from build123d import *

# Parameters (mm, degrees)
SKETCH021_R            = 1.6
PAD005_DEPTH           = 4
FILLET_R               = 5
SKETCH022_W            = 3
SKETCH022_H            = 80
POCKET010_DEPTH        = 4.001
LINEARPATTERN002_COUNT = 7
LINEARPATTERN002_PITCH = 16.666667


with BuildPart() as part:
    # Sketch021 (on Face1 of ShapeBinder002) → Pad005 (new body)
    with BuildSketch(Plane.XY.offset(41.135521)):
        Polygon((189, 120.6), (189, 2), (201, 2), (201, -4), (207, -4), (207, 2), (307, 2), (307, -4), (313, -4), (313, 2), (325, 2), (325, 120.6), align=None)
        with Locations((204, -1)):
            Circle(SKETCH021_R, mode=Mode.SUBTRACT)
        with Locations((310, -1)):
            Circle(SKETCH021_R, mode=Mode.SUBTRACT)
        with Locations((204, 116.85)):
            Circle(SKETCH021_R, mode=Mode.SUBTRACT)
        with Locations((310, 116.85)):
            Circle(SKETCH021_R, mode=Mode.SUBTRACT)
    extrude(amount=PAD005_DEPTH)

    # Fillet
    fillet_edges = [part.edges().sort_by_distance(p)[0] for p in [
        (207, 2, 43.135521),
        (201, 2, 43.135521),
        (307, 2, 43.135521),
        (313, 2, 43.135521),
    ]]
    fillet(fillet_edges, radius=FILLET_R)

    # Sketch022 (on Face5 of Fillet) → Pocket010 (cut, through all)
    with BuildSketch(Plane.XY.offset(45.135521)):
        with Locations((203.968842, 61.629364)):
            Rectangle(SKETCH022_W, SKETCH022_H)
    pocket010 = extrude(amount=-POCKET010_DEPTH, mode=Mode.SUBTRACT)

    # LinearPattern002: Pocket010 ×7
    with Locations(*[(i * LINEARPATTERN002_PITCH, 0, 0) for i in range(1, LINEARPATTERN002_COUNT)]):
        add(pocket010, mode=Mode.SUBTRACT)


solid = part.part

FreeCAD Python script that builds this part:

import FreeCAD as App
import Part
import Sketcher
from FreeCAD import Vector
Q = App.Units.Quantity


def edges_at(feature, points):
    """Names of the edges that pass closest to the given points."""
    edges = feature.Shape.Edges
    near = lambda p: min(range(len(edges)), key=lambda i: edges[i].distToShape(Part.Vertex(*p))[0])
    return sorted({f"Edge{near(p) + 1}" for p in points})

doc = App.newDocument("Part")
params = doc.addObject("Spreadsheet::Sheet", "Params")
for row, (alias, value) in enumerate([
    ("sketch1_diameter", "3.2 mm"),
    ("sketch1_width", "12 mm"),
    ("sketch1_width2", "6 mm"),
    ("sketch1_width3", "100 mm"),
    ("sketch1_height", "118.6 mm"),
    ("pad1_length", "4 mm"),
    ("fillet_radius", "5 mm"),
    ("sketch2_width", "3 mm"),
    ("sketch2_height", "80 mm"),
    ("linearpattern_pitch", "16.666667 mm"),
], start=1):
    params.set(f"A{row}", alias)
    params.set(f"B{row}", "=" + value)
    params.setAlias(f"B{row}", alias)

body = doc.addObject("PartDesign::Body", "Body")

# Sketch on XY plane
sketch1 = body.newObject("Sketcher::SketchObject", "Sketch")
sketch1.AttachmentSupport = (doc.getObject("XY_Plane"), [""])
sketch1.MapMode = "FlatFace"
sketch1.AttachmentOffset = App.Placement(Vector(0, 0, 41.135521), App.Rotation())
sketch1.addGeometry(Part.LineSegment(Vector(189, 120.6, 0), Vector(189, 2, 0)), False)
sketch1.addGeometry(Part.LineSegment(Vector(189, 2, 0), Vector(201, 2, 0)), False)
sketch1.addGeometry(Part.LineSegment(Vector(201, 2, 0), Vector(201, -4, 0)), False)
sketch1.addGeometry(Part.LineSegment(Vector(201, -4, 0), Vector(207, -4, 0)), False)
sketch1.addGeometry(Part.LineSegment(Vector(207, -4, 0), Vector(207, 2, 0)), False)
sketch1.addGeometry(Part.LineSegment(Vector(207, 2, 0), Vector(307, 2, 0)), False)
sketch1.addGeometry(Part.LineSegment(Vector(307, 2, 0), Vector(307, -4, 0)), False)
sketch1.addGeometry(Part.LineSegment(Vector(307, -4, 0), Vector(313, -4, 0)), False)
sketch1.addGeometry(Part.LineSegment(Vector(313, -4, 0), Vector(313, 2, 0)), False)
sketch1.addGeometry(Part.LineSegment(Vector(313, 2, 0), Vector(325, 2, 0)), False)
sketch1.addGeometry(Part.LineSegment(Vector(325, 2, 0), Vector(325, 120.6, 0)), False)
sketch1.addGeometry(Part.LineSegment(Vector(325, 120.6, 0), Vector(189, 120.6, 0)), False)
sketch1.addGeometry(Part.Circle(Vector(204, -1, 0), Vector(0, 0, 1), 1.6), False)
sketch1.addGeometry(Part.Circle(Vector(310, -1, 0), Vector(0, 0, 1), 1.6), False)
sketch1.addGeometry(Part.Circle(Vector(204, 116.8, 0), Vector(0, 0, 1), 1.6), False)
sketch1.addGeometry(Part.Circle(Vector(310, 116.8, 0), Vector(0, 0, 1), 1.6), False)
sketch1.addConstraint(Sketcher.Constraint("Coincident", 0, 2, 1, 1))
sketch1.addConstraint(Sketcher.Constraint("Coincident", 1, 2, 2, 1))
sketch1.addConstraint(Sketcher.Constraint("Coincident", 2, 2, 3, 1))
sketch1.addConstraint(Sketcher.Constraint("Coincident", 3, 2, 4, 1))
sketch1.addConstraint(Sketcher.Constraint("Coincident", 4, 2, 5, 1))
sketch1.addConstraint(Sketcher.Constraint("Coincident", 5, 2, 6, 1))
sketch1.addConstraint(Sketcher.Constraint("Coincident", 6, 2, 7, 1))
sketch1.addConstraint(Sketcher.Constraint("Coincident", 7, 2, 8, 1))
sketch1.addConstraint(Sketcher.Constraint("Coincident", 8, 2, 9, 1))
sketch1.addConstraint(Sketcher.Constraint("Coincident", 9, 2, 10, 1))
sketch1.addConstraint(Sketcher.Constraint("Coincident", 10, 2, 11, 1))
sketch1.addConstraint(Sketcher.Constraint("Coincident", 11, 2, 0, 1))
sketch1.addConstraint(Sketcher.Constraint("Vertical", 0))
sketch1.addConstraint(Sketcher.Constraint("Horizontal", 1))
sketch1.addConstraint(Sketcher.Constraint("Vertical", 2))
sketch1.addConstraint(Sketcher.Constraint("Horizontal", 3))
sketch1.addConstraint(Sketcher.Constraint("Vertical", 4))
sketch1.addConstraint(Sketcher.Constraint("Horizontal", 5))
sketch1.addConstraint(Sketcher.Constraint("Vertical", 6))
sketch1.addConstraint(Sketcher.Constraint("Horizontal", 7))
sketch1.addConstraint(Sketcher.Constraint("Vertical", 8))
sketch1.addConstraint(Sketcher.Constraint("Horizontal", 9))
sketch1.addConstraint(Sketcher.Constraint("Vertical", 10))
sketch1.addConstraint(Sketcher.Constraint("Horizontal", 11))
sketch1.addConstraint(Sketcher.Constraint("Equal", 12, 13))
sketch1.addConstraint(Sketcher.Constraint("Equal", 13, 14))
sketch1.addConstraint(Sketcher.Constraint("Equal", 14, 15))
sketch1.addConstraint(Sketcher.Constraint("Horizontal", 12, 3, 13, 3))
sketch1.addConstraint(Sketcher.Constraint("Horizontal", 14, 3, 15, 3))
sketch1.addConstraint(Sketcher.Constraint("Horizontal", 1, 2, 4, 2))
sketch1.addConstraint(Sketcher.Constraint("Horizontal", 3, 2, 6, 2))
sketch1.addConstraint(Sketcher.Constraint("Horizontal", 5, 2, 8, 2))
sketch1.addConstraint(Sketcher.Constraint("Vertical", 12, 3, 14, 3))
sketch1.addConstraint(Sketcher.Constraint("Vertical", 13, 3, 15, 3))
sketch1.addConstraint(Sketcher.Constraint("Equal", 3, 7))
sketch1.addConstraint(Sketcher.Constraint("Equal", 1, 9))
sketch1.addConstraint(Sketcher.Constraint("Equal", 7, 2))
sketch1.addConstraint(Sketcher.Constraint("Diameter", 12, Q("3.2 mm")))
sketch1.addConstraint(Sketcher.Constraint("DistanceX", 1, 1, 1, 2, Q("12 mm")))
sketch1.addConstraint(Sketcher.Constraint("DistanceX", 3, 1, 3, 2, Q("6 mm")))
sketch1.addConstraint(Sketcher.Constraint("DistanceX", 5, 1, 5, 2, Q("100 mm")))
sketch1.addConstraint(Sketcher.Constraint("DistanceY", 0, 2, 0, 1, Q("118.6 mm")))
sketch1.addConstraint(Sketcher.Constraint("DistanceX", -1, 1, 12, 3, Q("204 mm")))
sketch1.addConstraint(Sketcher.Constraint("DistanceY", 12, 3, -1, 1, Q("1 mm")))
sketch1.addConstraint(Sketcher.Constraint("DistanceX", -1, 1, 13, 3, Q("310 mm")))
sketch1.addConstraint(Sketcher.Constraint("DistanceX", -1, 1, 0, 2, Q("189 mm")))
sketch1.addConstraint(Sketcher.Constraint("DistanceY", -1, 1, 0, 2, Q("2 mm")))
sketch1.addConstraint(Sketcher.Constraint("DistanceY", -1, 1, 14, 3, Q("116.85 mm")))
sketch1.setExpression("Constraints[37]", "Params.sketch1_diameter")
sketch1.setExpression("Constraints[38]", "Params.sketch1_width")
sketch1.setExpression("Constraints[39]", "Params.sketch1_width2")
sketch1.setExpression("Constraints[40]", "Params.sketch1_width3")
sketch1.setExpression("Constraints[41]", "Params.sketch1_height")
pad1 = body.newObject("PartDesign::Pad", "Pad")
pad1.Profile = sketch1
pad1.setExpression("Length", "Params.pad1_length")
doc.recompute()

fillet = body.newObject("PartDesign::Fillet", "Fillet")
fillet.Base = (pad1, edges_at(pad1, [
    (207, 2, 43.136),
    (201, 2, 43.136),
    (307, 2, 43.136),
    (313, 2, 43.136),
]))
fillet.setExpression("Radius", "Params.fillet_radius")

# Sketch on XY plane
sketch2 = body.newObject("Sketcher::SketchObject", "Sketch001")
sketch2.AttachmentSupport = (doc.getObject("XY_Plane"), [""])
sketch2.MapMode = "FlatFace"
sketch2.AttachmentOffset = App.Placement(Vector(0, 0, 45.135521), App.Rotation())
sketch2.addGeometry(Part.LineSegment(Vector(202.5, 101.6, 0), Vector(202.5, 21.6, 0)), False)
sketch2.addGeometry(Part.LineSegment(Vector(202.5, 21.6, 0), Vector(205.5, 21.6, 0)), False)
sketch2.addGeometry(Part.LineSegment(Vector(205.5, 21.6, 0), Vector(205.5, 101.6, 0)), False)
sketch2.addGeometry(Part.LineSegment(Vector(205.5, 101.6, 0), Vector(202.5, 101.6, 0)), False)
sketch2.addConstraint(Sketcher.Constraint("Coincident", 0, 2, 1, 1))
sketch2.addConstraint(Sketcher.Constraint("Coincident", 1, 2, 2, 1))
sketch2.addConstraint(Sketcher.Constraint("Coincident", 2, 2, 3, 1))
sketch2.addConstraint(Sketcher.Constraint("Coincident", 3, 2, 0, 1))
sketch2.addConstraint(Sketcher.Constraint("Vertical", 0))
sketch2.addConstraint(Sketcher.Constraint("Horizontal", 1))
sketch2.addConstraint(Sketcher.Constraint("Vertical", 2))
sketch2.addConstraint(Sketcher.Constraint("Horizontal", 3))
sketch2.addConstraint(Sketcher.Constraint("DistanceX", 1, 1, 1, 2, Q("3 mm")))
sketch2.addConstraint(Sketcher.Constraint("DistanceY", 0, 2, 0, 1, Q("80 mm")))
sketch2.addConstraint(Sketcher.Constraint("DistanceX", -1, 1, 0, 2, Q("202.468842 mm")))
sketch2.addConstraint(Sketcher.Constraint("DistanceY", -1, 1, 0, 2, Q("21.629364 mm")))
sketch2.setExpression("Constraints[8]", "Params.sketch2_width")
sketch2.setExpression("Constraints[9]", "Params.sketch2_height")
pocket1 = body.newObject("PartDesign::Pocket", "Pocket")
pocket1.Profile = sketch2
pocket1.Type = "ThroughAll"
doc.recompute()

linearpattern = body.newObject("PartDesign::LinearPattern", "LinearPattern")
linearpattern.Originals = [pocket1]
linearpattern.Direction = (doc.getObject("X_Axis"), [""])
linearpattern.Mode = "offset"
linearpattern.setExpression("Offset", "Params.linearpattern_pitch")
linearpattern.Occurrences = 7
body.Tip = linearpattern

doc.recompute()
